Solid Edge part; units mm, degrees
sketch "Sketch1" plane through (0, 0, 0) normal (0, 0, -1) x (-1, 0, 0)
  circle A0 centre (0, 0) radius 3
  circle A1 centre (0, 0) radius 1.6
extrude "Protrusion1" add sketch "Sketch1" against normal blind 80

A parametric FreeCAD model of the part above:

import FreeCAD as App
import Part
import Sketcher

V = App.Vector
Q = App.Units.Quantity

doc = App.newDocument("Part")
body = doc.addObject("PartDesign::Body", "Body")

# Sketch on XY plane
sketch1 = doc.addObject("Sketcher::SketchObject", "Sketch")
body.addObject(sketch1)
sketch1.AttachmentSupport = (doc.XY_Plane, [""])
sketch1.MapMode = "FlatFace"
sketch1.addGeometry(Part.Circle(V(0, 0, 0), V(0, 0, 1), 3), False)
sketch1.addGeometry(Part.Circle(V(0, 0, 0), V(0, 0, 1), 1.6), False)
sketch1.addConstraint(Sketcher.Constraint("Coincident", 0, 3, -1, 1))
sketch1.addConstraint(Sketcher.Constraint("Coincident", 1, 3, -1, 1))
sketch1.addConstraint(Sketcher.Constraint("Diameter", 0, Q("6 mm")))
sketch1.addConstraint(Sketcher.Constraint("Diameter", 1, Q("3.2 mm")))
pad1 = doc.addObject("PartDesign::Pad", "Pad")
body.addObject(pad1)
pad1.Profile = sketch1
pad1.Length = 80

doc.recompute()
